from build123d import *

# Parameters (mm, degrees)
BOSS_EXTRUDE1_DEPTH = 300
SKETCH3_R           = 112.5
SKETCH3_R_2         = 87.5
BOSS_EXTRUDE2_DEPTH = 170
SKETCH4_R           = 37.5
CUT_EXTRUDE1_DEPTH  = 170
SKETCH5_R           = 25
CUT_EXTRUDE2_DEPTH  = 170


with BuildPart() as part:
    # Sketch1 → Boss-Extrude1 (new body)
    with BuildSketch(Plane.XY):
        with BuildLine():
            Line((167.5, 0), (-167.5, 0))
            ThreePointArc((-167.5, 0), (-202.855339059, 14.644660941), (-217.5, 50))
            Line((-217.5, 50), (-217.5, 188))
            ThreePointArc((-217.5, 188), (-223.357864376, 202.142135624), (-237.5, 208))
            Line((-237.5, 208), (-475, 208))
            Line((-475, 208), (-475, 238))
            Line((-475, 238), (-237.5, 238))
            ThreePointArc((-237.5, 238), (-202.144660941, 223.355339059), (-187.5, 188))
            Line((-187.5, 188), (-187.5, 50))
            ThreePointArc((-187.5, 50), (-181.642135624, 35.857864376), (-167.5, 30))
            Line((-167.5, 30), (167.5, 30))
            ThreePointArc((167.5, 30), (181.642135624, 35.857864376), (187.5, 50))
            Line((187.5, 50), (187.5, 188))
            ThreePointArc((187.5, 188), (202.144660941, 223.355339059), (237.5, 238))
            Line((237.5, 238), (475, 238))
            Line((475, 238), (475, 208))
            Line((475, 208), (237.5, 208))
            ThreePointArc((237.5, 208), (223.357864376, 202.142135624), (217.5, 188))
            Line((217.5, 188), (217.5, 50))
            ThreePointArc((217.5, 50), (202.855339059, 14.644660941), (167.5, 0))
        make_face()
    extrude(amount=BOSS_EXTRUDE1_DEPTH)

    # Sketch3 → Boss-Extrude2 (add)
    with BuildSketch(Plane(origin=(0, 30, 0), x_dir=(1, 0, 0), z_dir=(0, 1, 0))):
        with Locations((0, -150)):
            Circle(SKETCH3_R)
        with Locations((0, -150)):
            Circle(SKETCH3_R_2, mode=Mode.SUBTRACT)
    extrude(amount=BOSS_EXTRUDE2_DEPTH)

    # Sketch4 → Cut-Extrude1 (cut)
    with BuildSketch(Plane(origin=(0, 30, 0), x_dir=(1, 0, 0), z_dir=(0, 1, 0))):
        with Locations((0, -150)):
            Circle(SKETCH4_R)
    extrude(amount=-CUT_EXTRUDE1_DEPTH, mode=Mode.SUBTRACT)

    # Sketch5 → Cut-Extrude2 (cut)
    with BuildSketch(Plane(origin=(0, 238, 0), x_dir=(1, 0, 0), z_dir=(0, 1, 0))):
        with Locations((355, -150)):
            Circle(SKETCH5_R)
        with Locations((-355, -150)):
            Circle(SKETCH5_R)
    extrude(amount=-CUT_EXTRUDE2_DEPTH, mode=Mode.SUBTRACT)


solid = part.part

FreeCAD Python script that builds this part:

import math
import FreeCAD as App
import Part
import Sketcher
Q = App.Units.Quantity

doc = App.newDocument("Part")
params = doc.addObject("Spreadsheet::Sheet", "Params")
for row, (alias, value) in enumerate([
    ("sketch1_radius", "50 mm"),
    ("sketch1_radius2", "20 mm"),
    ("sketch1_width", "335 mm"),
    ("sketch1_height", "138 mm"),
    ("sketch1_width2", "237.5 mm"),
    ("pad1_length", "300 mm"),
    ("sketch2_diameter", "225 mm"),
    ("sketch2_diameter2", "175 mm"),
    ("pad2_length", "170 mm"),
    ("sketch3_diameter", "75 mm"),
    ("pocket1_length", "170 mm"),
    ("sketch4_diameter", "50 mm"),
    ("pocket2_length", "170 mm"),
], start=1):
    params.set(f"A{row}", alias)
    params.set(f"B{row}", "=" + value)
    params.setAlias(f"B{row}", alias)

body = doc.addObject("PartDesign::Body", "Body")

# Sketch on XY plane
sketch1 = body.newObject("Sketcher::SketchObject", "Sketch")
sketch1.AttachmentSupport = (doc.getObject("XY_Plane"), [""])
sketch1.MapMode = "FlatFace"
sketch1.addGeometry([
    Part.LineSegment(App.Vector(-167.5, 0, 0), App.Vector(167.5, 0, 0)),  # 0
    Part.ArcOfCircle(Part.Circle(App.Vector(167.5, 50, 0), App.Vector(0, 0, 1), 50), math.radians(-90), math.radians(0)),  # 1
    Part.LineSegment(App.Vector(217.5, 50, 0), App.Vector(217.5, 188, 0)),  # 2
    Part.ArcOfCircle(Part.Circle(App.Vector(237.5, 188, 0), App.Vector(0, 0, 1), 20), math.radians(90), math.radians(180)),  # 3
    Part.LineSegment(App.Vector(237.5, 208, 0), App.Vector(475, 208, 0)),  # 4
    Part.LineSegment(App.Vector(475, 208, 0), App.Vector(475, 238, 0)),  # 5
    Part.LineSegment(App.Vector(475, 238, 0), App.Vector(237.5, 238, 0)),  # 6
    Part.ArcOfCircle(Part.Circle(App.Vector(237.5, 188, 0), App.Vector(0, 0, 1), 50), math.radians(90), math.radians(180)),  # 7
    Part.LineSegment(App.Vector(187.5, 188, 0), App.Vector(187.5, 50, 0)),  # 8
    Part.ArcOfCircle(Part.Circle(App.Vector(167.5, 50, 0), App.Vector(0, 0, 1), 20), math.radians(-90), math.radians(0)),  # 9
    Part.LineSegment(App.Vector(167.5, 30, 0), App.Vector(-167.5, 30, 0)),  # 10
    Part.ArcOfCircle(Part.Circle(App.Vector(-167.5, 50, 0), App.Vector(0, 0, 1), 20), math.radians(180), math.radians(270)),  # 11
    Part.LineSegment(App.Vector(-187.5, 50, 0), App.Vector(-187.5, 188, 0)),  # 12
    Part.ArcOfCircle(Part.Circle(App.Vector(-237.5, 188, 0), App.Vector(0, 0, 1), 50), math.radians(0), math.radians(90)),  # 13
    Part.LineSegment(App.Vector(-237.5, 238, 0), App.Vector(-475, 238, 0)),  # 14
    Part.LineSegment(App.Vector(-475, 238, 0), App.Vector(-475, 208, 0)),  # 15
    Part.LineSegment(App.Vector(-475, 208, 0), App.Vector(-237.5, 208, 0)),  # 16
    Part.ArcOfCircle(Part.Circle(App.Vector(-237.5, 188, 0), App.Vector(0, 0, 1), 20), math.radians(0), math.radians(90)),  # 17
    Part.LineSegment(App.Vector(-217.5, 188, 0), App.Vector(-217.5, 50, 0)),  # 18
    Part.ArcOfCircle(Part.Circle(App.Vector(-167.5, 50, 0), App.Vector(0, 0, 1), 50), math.radians(-180), math.radians(-90)),  # 19
], False)
sketch1.addConstraint([
    Sketcher.Constraint("Tangent", 0, 2, 1, 1),
    Sketcher.Constraint("Tangent", 1, 2, 2, 1),
    Sketcher.Constraint("Tangent", 2, 2, 3, 2),
    Sketcher.Constraint("Tangent", 3, 1, 4, 1),
    Sketcher.Constraint("Coincident", 4, 2, 5, 1),
    Sketcher.Constraint("Coincident", 5, 2, 6, 1),
    Sketcher.Constraint("Tangent", 6, 2, 7, 1),
    Sketcher.Constraint("Tangent", 7, 2, 8, 1),
    Sketcher.Constraint("Tangent", 8, 2, 9, 2),
    Sketcher.Constraint("Tangent", 9, 1, 10, 1),
    Sketcher.Constraint("Tangent", 10, 2, 11, 2),
    Sketcher.Constraint("Tangent", 11, 1, 12, 1),
    Sketcher.Constraint("Tangent", 12, 2, 13, 1),
    Sketcher.Constraint("Tangent", 13, 2, 14, 1),
    Sketcher.Constraint("Coincident", 14, 2, 15, 1),
    Sketcher.Constraint("Coincident", 15, 2, 16, 1),
    Sketcher.Constraint("Tangent", 16, 2, 17, 2),
    Sketcher.Constraint("Tangent", 17, 1, 18, 1),
    Sketcher.Constraint("Tangent", 18, 2, 19, 1),
    Sketcher.Constraint("Tangent", 19, 2, 0, 1),
    Sketcher.Constraint("Horizontal", 0),
    Sketcher.Constraint("Vertical", 2),
    Sketcher.Constraint("Horizontal", 4),
    Sketcher.Constraint("Vertical", 5),
    Sketcher.Constraint("Horizontal", 6),
    Sketcher.Constraint("Vertical", 8),
    Sketcher.Constraint("Horizontal", 10),
    Sketcher.Constraint("Vertical", 12),
    Sketcher.Constraint("Horizontal", 14),
    Sketcher.Constraint("Vertical", 15),
    Sketcher.Constraint("Horizontal", 16),
    Sketcher.Constraint("Vertical", 18),
    Sketcher.Constraint("Coincident", 7, 3, 3, 3),
    Sketcher.Constraint("Coincident", 9, 3, 1, 3),
    Sketcher.Constraint("Coincident", 17, 3, 13, 3),
    Sketcher.Constraint("Coincident", 19, 3, 11, 3),
    Sketcher.Constraint("Equal", 1, 7),
    Sketcher.Constraint("Equal", 9, 11),
    Sketcher.Constraint("Equal", 7, 13),
    Sketcher.Constraint("Symmetric", 0, 2, 19, 2, -1, 1),
    Sketcher.Constraint("Symmetric", 5, 2, 14, 2, -2),
    Sketcher.Constraint("Radius", 1, Q("50 mm")),
    Sketcher.Constraint("Radius", 3, Q("20 mm")),
    Sketcher.Constraint("DistanceX", 0, 1, 0, 2, Q("335 mm")),
    Sketcher.Constraint("DistanceY", 2, 1, 2, 2, Q("138 mm")),
    Sketcher.Constraint("DistanceX", 4, 1, 4, 2, Q("237.5 mm")),
])
sketch1.setExpression("Constraints[41]", "Params.sketch1_radius")
sketch1.setExpression("Constraints[42]", "Params.sketch1_radius2")
sketch1.setExpression("Constraints[43]", "Params.sketch1_width")
sketch1.setExpression("Constraints[44]", "Params.sketch1_height")
sketch1.setExpression("Constraints[45]", "Params.sketch1_width2")
pad1 = body.newObject("PartDesign::Pad", "Pad")
pad1.Profile = sketch1
pad1.setExpression("Length", "Params.pad1_length")

# Sketch on XZ plane
sketch2 = body.newObject("Sketcher::SketchObject", "Sketch001")
sketch2.AttachmentSupport = (doc.getObject("XZ_Plane"), [""])
sketch2.MapMode = "FlatFace"
sketch2.AttachmentOffset = App.Placement(App.Vector(0, 0, -30), App.Rotation())
sketch2.addGeometry([
    Part.Circle(App.Vector(0, 150, 0), App.Vector(0, 0, 1), 112.5),
    Part.Circle(App.Vector(0, 150, 0), App.Vector(0, 0, 1), 87.5),
], False)
sketch2.addConstraint([
    Sketcher.Constraint("Coincident", 1, 3, 0, 3),
    Sketcher.Constraint("PointOnObject", 0, 3, -2),
    Sketcher.Constraint("Diameter", 0, Q("225 mm")),
    Sketcher.Constraint("Diameter", 1, Q("175 mm")),
    Sketcher.Constraint("DistanceY", -1, 1, 0, 3, Q("150 mm")),
])
sketch2.setExpression("Constraints[2]", "Params.sketch2_diameter")
sketch2.setExpression("Constraints[3]", "Params.sketch2_diameter2")
pad2 = body.newObject("PartDesign::Pad", "Pad001")
pad2.Profile = sketch2
pad2.setExpression("Length", "Params.pad2_length")
pad2.Reversed = True

# Sketch on XZ plane
sketch3 = body.newObject("Sketcher::SketchObject", "Sketch002")
sketch3.AttachmentSupport = (doc.getObject("XZ_Plane"), [""])
sketch3.MapMode = "FlatFace"
sketch3.AttachmentOffset = App.Placement(App.Vector(0, 0, -30), App.Rotation())
sketch3.addGeometry(Part.Circle(App.Vector(0, 150, 0), App.Vector(0, 0, 1), 37.5), False)
sketch3.addConstraint([
    Sketcher.Constraint("PointOnObject", 0, 3, -2),
    Sketcher.Constraint("Diameter", 0, Q("75 mm")),
    Sketcher.Constraint("DistanceY", -1, 1, 0, 3, Q("150 mm")),
])
sketch3.setExpression("Constraints[1]", "Params.sketch3_diameter")
pocket1 = body.newObject("PartDesign::Pocket", "Pocket")
pocket1.Profile = sketch3
pocket1.setExpression("Length", "Params.pocket1_length")
pocket1.Reversed = True

# Sketch on XZ plane
sketch4 = body.newObject("Sketcher::SketchObject", "Sketch003")
sketch4.AttachmentSupport = (doc.getObject("XZ_Plane"), [""])
sketch4.MapMode = "FlatFace"
sketch4.AttachmentOffset = App.Placement(App.Vector(0, 0, -238), App.Rotation())
sketch4.addGeometry([
    Part.Circle(App.Vector(355, 150, 0), App.Vector(0, 0, 1), 25),
    Part.Circle(App.Vector(-355, 150, 0), App.Vector(0, 0, 1), 25),
], False)
sketch4.addConstraint([
    Sketcher.Constraint("Equal", 0, 1),
    Sketcher.Constraint("Symmetric", 0, 3, 1, 3, -2),
    Sketcher.Constraint("Diameter", 0, Q("50 mm")),
    Sketcher.Constraint("DistanceX", -1, 1, 0, 3, Q("355 mm")),
    Sketcher.Constraint("DistanceY", -1, 1, 0, 3, Q("150 mm")),
])
sketch4.setExpression("Constraints[2]", "Params.sketch4_diameter")
pocket2 = body.newObject("PartDesign::Pocket", "Pocket001")
pocket2.Profile = sketch4
pocket2.setExpression("Length", "Params.pocket2_length")
pocket2.Reversed = True

doc.recompute()
